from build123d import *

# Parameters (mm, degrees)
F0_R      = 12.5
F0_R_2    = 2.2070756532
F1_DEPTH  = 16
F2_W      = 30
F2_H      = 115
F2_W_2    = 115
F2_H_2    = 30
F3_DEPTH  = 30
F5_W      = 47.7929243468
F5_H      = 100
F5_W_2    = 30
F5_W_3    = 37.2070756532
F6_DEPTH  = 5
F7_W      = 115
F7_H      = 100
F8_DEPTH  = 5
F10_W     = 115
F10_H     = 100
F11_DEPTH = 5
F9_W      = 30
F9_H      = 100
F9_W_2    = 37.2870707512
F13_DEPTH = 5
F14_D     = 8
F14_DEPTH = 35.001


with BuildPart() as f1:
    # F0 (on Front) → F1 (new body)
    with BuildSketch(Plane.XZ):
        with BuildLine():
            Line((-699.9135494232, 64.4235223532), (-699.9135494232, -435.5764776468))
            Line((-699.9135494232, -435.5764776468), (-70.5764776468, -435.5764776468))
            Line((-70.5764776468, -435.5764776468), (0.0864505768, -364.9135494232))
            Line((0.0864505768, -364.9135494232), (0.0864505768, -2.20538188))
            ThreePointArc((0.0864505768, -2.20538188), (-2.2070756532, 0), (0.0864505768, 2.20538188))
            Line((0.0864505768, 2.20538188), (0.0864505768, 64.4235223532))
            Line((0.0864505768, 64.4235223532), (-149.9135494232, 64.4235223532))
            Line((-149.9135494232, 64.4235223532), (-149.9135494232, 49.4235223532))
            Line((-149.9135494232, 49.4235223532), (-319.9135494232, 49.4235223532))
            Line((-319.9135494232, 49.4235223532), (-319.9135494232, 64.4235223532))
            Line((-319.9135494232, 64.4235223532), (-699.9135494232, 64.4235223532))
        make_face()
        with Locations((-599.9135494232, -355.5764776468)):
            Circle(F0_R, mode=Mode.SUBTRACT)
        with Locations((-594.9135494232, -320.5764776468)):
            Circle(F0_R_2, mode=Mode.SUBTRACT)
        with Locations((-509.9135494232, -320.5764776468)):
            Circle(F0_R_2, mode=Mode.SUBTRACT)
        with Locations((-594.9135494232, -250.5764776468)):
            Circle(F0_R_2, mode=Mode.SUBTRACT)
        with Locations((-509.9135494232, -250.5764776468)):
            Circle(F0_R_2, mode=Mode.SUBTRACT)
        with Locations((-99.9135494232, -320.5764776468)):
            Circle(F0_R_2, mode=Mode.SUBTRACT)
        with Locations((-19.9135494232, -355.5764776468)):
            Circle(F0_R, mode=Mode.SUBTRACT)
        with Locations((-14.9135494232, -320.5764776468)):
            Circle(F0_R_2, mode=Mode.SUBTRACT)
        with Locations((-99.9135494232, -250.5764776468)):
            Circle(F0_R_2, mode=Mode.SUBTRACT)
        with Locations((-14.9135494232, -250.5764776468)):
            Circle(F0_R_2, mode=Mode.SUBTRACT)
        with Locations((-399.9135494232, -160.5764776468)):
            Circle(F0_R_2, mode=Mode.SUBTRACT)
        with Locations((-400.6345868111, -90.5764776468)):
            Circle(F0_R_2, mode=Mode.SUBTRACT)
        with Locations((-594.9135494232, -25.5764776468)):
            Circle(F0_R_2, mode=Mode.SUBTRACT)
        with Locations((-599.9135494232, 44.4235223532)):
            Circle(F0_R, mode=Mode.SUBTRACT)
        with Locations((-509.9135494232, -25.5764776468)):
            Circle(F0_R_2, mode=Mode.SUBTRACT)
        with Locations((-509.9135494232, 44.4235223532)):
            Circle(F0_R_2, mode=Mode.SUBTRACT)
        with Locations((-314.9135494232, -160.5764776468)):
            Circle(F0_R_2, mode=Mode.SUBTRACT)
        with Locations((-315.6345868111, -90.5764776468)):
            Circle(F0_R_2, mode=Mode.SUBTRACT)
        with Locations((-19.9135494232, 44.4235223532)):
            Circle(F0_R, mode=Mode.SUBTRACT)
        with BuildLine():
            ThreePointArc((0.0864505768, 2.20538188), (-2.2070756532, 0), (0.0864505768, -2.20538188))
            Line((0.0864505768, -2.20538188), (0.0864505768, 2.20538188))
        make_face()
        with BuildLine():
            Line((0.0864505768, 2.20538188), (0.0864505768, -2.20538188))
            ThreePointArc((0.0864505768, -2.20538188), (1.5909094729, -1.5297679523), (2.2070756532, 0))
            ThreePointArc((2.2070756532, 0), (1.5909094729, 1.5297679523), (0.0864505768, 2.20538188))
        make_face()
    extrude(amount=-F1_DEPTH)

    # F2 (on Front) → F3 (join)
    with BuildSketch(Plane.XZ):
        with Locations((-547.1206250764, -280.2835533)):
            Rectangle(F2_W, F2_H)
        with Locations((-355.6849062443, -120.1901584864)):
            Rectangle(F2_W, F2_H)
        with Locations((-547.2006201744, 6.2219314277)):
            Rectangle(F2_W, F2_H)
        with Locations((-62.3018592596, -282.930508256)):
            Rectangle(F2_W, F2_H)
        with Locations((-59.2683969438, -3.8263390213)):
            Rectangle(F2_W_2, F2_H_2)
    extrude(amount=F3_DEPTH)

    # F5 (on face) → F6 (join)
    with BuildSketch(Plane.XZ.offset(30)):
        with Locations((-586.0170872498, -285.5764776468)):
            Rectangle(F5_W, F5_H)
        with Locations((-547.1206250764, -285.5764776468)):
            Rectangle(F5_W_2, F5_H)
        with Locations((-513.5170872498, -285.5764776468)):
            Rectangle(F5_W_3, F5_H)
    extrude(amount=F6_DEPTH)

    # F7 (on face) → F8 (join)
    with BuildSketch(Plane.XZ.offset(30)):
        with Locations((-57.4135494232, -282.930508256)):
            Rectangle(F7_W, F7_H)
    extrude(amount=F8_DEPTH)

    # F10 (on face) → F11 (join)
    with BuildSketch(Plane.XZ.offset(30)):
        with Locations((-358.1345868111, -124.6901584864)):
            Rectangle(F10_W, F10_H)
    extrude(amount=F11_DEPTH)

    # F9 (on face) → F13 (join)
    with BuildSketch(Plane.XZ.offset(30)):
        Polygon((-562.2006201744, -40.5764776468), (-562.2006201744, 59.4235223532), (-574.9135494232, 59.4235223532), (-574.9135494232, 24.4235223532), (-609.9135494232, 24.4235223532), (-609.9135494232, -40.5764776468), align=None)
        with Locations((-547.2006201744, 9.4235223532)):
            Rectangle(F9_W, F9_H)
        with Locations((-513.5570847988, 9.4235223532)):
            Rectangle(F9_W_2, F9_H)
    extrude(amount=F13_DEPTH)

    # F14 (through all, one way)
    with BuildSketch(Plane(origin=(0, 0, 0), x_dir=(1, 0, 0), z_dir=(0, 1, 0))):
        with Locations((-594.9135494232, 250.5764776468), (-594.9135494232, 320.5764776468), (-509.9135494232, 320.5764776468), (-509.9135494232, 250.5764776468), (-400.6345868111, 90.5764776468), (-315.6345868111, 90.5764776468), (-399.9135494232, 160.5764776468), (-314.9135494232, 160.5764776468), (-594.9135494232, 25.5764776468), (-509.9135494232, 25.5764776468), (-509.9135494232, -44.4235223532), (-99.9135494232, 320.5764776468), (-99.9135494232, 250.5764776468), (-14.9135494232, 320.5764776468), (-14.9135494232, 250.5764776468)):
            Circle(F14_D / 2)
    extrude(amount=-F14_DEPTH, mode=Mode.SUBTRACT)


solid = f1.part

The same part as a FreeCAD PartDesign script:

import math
import FreeCAD as App
import Part
import Sketcher
from FreeCAD import Vector
Q = App.Units.Quantity

doc = App.newDocument("Part")
body = doc.addObject("PartDesign::Body", "Body")

sketch1 = body.newObject("Sketcher::SketchObject", "Sketch")
sketch1.AttachmentSupport = (doc.getObject("XZ_Plane"), [""])
sketch1.MapMode = "FlatFace"
sketch1.addGeometry(Part.LineSegment(Vector(-699.913549, 64.423522, 0), Vector(-699.913549, -435.576478, 0)), False)
sketch1.addGeometry(Part.LineSegment(Vector(-699.913549, -435.576478, 0), Vector(-70.576478, -435.576478, 0)), False)
sketch1.addGeometry(Part.LineSegment(Vector(-70.576478, -435.576478, 0), Vector(0.086451, -364.913549, 0)), False)
sketch1.addGeometry(Part.LineSegment(Vector(0.086451, -364.913549, 0), Vector(0.086451, -2.205382, 0)), False)
sketch1.addGeometry(Part.ArcOfCircle(Part.Circle(Vector(0, 0, 0), Vector(0, 0, 1), 2.207076), math.radians(-87.755165), math.radians(0)), False)
sketch1.addGeometry(Part.ArcOfCircle(Part.Circle(Vector(0, 0, 0), Vector(0, 0, 1), 2.207076), math.radians(0), math.radians(87.755165)), False)
sketch1.addGeometry(Part.LineSegment(Vector(0.086451, 2.205382, 0), Vector(0.086451, 64.423522, 0)), False)
sketch1.addGeometry(Part.LineSegment(Vector(0.086451, 64.423522, 0), Vector(-149.913549, 64.423522, 0)), False)
sketch1.addGeometry(Part.LineSegment(Vector(-149.913549, 64.423522, 0), Vector(-149.913549, 49.423522, 0)), False)
sketch1.addGeometry(Part.LineSegment(Vector(-149.913549, 49.423522, 0), Vector(-319.913549, 49.423522, 0)), False)
sketch1.addGeometry(Part.LineSegment(Vector(-319.913549, 49.423522, 0), Vector(-319.913549, 64.423522, 0)), False)
sketch1.addGeometry(Part.LineSegment(Vector(-319.913549, 64.423522, 0), Vector(-699.913549, 64.423522, 0)), False)
sketch1.addGeometry(Part.Circle(Vector(-599.913549, -355.576478, 0), Vector(0, 0, 1), 12.5), False)
sketch1.addGeometry(Part.Circle(Vector(-594.913549, -320.576478, 0), Vector(0, 0, 1), 2.207076), False)
sketch1.addGeometry(Part.Circle(Vector(-509.913549, -320.576478, 0), Vector(0, 0, 1), 2.207076), False)
sketch1.addGeometry(Part.Circle(Vector(-594.913549, -250.576478, 0), Vector(0, 0, 1), 2.207076), False)
sketch1.addGeometry(Part.Circle(Vector(-509.913549, -250.576478, 0), Vector(0, 0, 1), 2.207076), False)
sketch1.addGeometry(Part.Circle(Vector(-399.913549, -160.576478, 0), Vector(0, 0, 1), 2.207076), False)
sketch1.addGeometry(Part.Circle(Vector(-314.913549, -160.576478, 0), Vector(0, 0, 1), 2.207076), False)
sketch1.addGeometry(Part.Circle(Vector(-99.913549, -320.576478, 0), Vector(0, 0, 1), 2.207076), False)
sketch1.addGeometry(Part.Circle(Vector(-19.913549, -355.576478, 0), Vector(0, 0, 1), 12.5), False)
sketch1.addGeometry(Part.Circle(Vector(-14.913549, -320.576478, 0), Vector(0, 0, 1), 2.207076), False)
sketch1.addGeometry(Part.Circle(Vector(-99.913549, -250.576478, 0), Vector(0, 0, 1), 2.207076), False)
sketch1.addGeometry(Part.Circle(Vector(-14.913549, -250.576478, 0), Vector(0, 0, 1), 2.207076), False)
sketch1.addGeometry(Part.Circle(Vector(-400.634587, -90.576478, 0), Vector(0, 0, 1), 2.207076), False)
sketch1.addGeometry(Part.Circle(Vector(-315.634587, -90.576478, 0), Vector(0, 0, 1), 2.207076), False)
sketch1.addGeometry(Part.Circle(Vector(-594.913549, -25.576478, 0), Vector(0, 0, 1), 2.207076), False)
sketch1.addGeometry(Part.Circle(Vector(-509.913549, -25.576478, 0), Vector(0, 0, 1), 2.207076), False)
sketch1.addGeometry(Part.Circle(Vector(-599.913549, 44.423522, 0), Vector(0, 0, 1), 12.5), False)
sketch1.addGeometry(Part.Circle(Vector(-509.913549, 44.423522, 0), Vector(0, 0, 1), 2.207076), False)
sketch1.addGeometry(Part.Circle(Vector(-19.913549, 44.423522, 0), Vector(0, 0, 1), 12.5), False)
sketch1.addConstraint(Sketcher.Constraint("Coincident", 0, 2, 1, 1))
sketch1.addConstraint(Sketcher.Constraint("Coincident", 1, 2, 2, 1))
sketch1.addConstraint(Sketcher.Constraint("Coincident", 2, 2, 3, 1))
sketch1.addConstraint(Sketcher.Constraint("Coincident", 3, 2, 4, 1))
sketch1.addConstraint(Sketcher.Constraint("Tangent", 4, 2, 5, 1))
sketch1.addConstraint(Sketcher.Constraint("Coincident", 5, 2, 6, 1))
sketch1.addConstraint(Sketcher.Constraint("Coincident", 6, 2, 7, 1))
sketch1.addConstraint(Sketcher.Constraint("Coincident", 7, 2, 8, 1))
sketch1.addConstraint(Sketcher.Constraint("Coincident", 8, 2, 9, 1))
sketch1.addConstraint(Sketcher.Constraint("Coincident", 9, 2, 10, 1))
sketch1.addConstraint(Sketcher.Constraint("Coincident", 10, 2, 11, 1))
sketch1.addConstraint(Sketcher.Constraint("Coincident", 11, 2, 0, 1))
sketch1.addConstraint(Sketcher.Constraint("Vertical", 0))
sketch1.addConstraint(Sketcher.Constraint("Horizontal", 1))
sketch1.addConstraint(Sketcher.Constraint("Vertical", 3))
sketch1.addConstraint(Sketcher.Constraint("Vertical", 6))
sketch1.addConstraint(Sketcher.Constraint("Horizontal", 7))
sketch1.addConstraint(Sketcher.Constraint("Vertical", 8))
sketch1.addConstraint(Sketcher.Constraint("Horizontal", 9))
sketch1.addConstraint(Sketcher.Constraint("Vertical", 10))
sketch1.addConstraint(Sketcher.Constraint("Horizontal", 11))
sketch1.addConstraint(Sketcher.Constraint("Coincident", 4, 3, -1, 1))
sketch1.addConstraint(Sketcher.Constraint("Equal", 4, 5))
sketch1.addConstraint(Sketcher.Constraint("Equal", 5, 13))
sketch1.addConstraint(Sketcher.Constraint("Equal", 13, 14))
sketch1.addConstraint(Sketcher.Constraint("Equal", 14, 15))
sketch1.addConstraint(Sketcher.Constraint("Equal", 15, 16))
sketch1.addConstraint(Sketcher.Constraint("Equal", 16, 17))
sketch1.addConstraint(Sketcher.Constraint("Equal", 17, 18))
sketch1.addConstraint(Sketcher.Constraint("Equal", 18, 19))
sketch1.addConstraint(Sketcher.Constraint("Equal", 12, 20))
sketch1.addConstraint(Sketcher.Constraint("Equal", 19, 21))
sketch1.addConstraint(Sketcher.Constraint("Equal", 21, 22))
sketch1.addConstraint(Sketcher.Constraint("Equal", 22, 23))
sketch1.addConstraint(Sketcher.Constraint("Equal", 23, 24))
sketch1.addConstraint(Sketcher.Constraint("Equal", 24, 25))
sketch1.addConstraint(Sketcher.Constraint("Equal", 25, 26))
sketch1.addConstraint(Sketcher.Constraint("Equal", 26, 27))
sketch1.addConstraint(Sketcher.Constraint("Equal", 20, 28))
sketch1.addConstraint(Sketcher.Constraint("Equal", 27, 29))
sketch1.addConstraint(Sketcher.Constraint("Equal", 28, 30))
sketch1.addConstraint(Sketcher.Constraint("PointOnObject", 4, 2, -1))
sketch1.addConstraint(Sketcher.Constraint("Horizontal", 13, 3, 14, 3))
sketch1.addConstraint(Sketcher.Constraint("Horizontal", 15, 3, 16, 3))
sketch1.addConstraint(Sketcher.Constraint("Horizontal", 17, 3, 18, 3))
sketch1.addConstraint(Sketcher.Constraint("Horizontal", 14, 3, 19, 3))
sketch1.addConstraint(Sketcher.Constraint("Horizontal", 12, 3, 20, 3))
sketch1.addConstraint(Sketcher.Constraint("Horizontal", 19, 3, 21, 3))
sketch1.addConstraint(Sketcher.Constraint("Horizontal", 16, 3, 22, 3))
sketch1.addConstraint(Sketcher.Constraint("Horizontal", 22, 3, 23, 3))
sketch1.addConstraint(Sketcher.Constraint("Horizontal", 24, 3, 25, 3))
sketch1.addConstraint(Sketcher.Constraint("Horizontal", 26, 3, 27, 3))
sketch1.addConstraint(Sketcher.Constraint("Horizontal", 28, 3, 29, 3))
sketch1.addConstraint(Sketcher.Constraint("Horizontal", 29, 3, 30, 3))
sketch1.addConstraint(Sketcher.Constraint("Horizontal", 7, 2, 10, 2))
sketch1.addConstraint(Sketcher.Constraint("Vertical", 13, 3, 15, 3))
sketch1.addConstraint(Sketcher.Constraint("Vertical", 14, 3, 16, 3))
sketch1.addConstraint(Sketcher.Constraint("Vertical", 19, 3, 22, 3))
sketch1.addConstraint(Sketcher.Constraint("Vertical", 21, 3, 23, 3))
sketch1.addConstraint(Sketcher.Constraint("Vertical", 15, 3, 26, 3))
sketch1.addConstraint(Sketcher.Constraint("Vertical", 16, 3, 27, 3))
sketch1.addConstraint(Sketcher.Constraint("Vertical", 12, 3, 28, 3))
sketch1.addConstraint(Sketcher.Constraint("Vertical", 27, 3, 29, 3))
sketch1.addConstraint(Sketcher.Constraint("Vertical", 20, 3, 30, 3))
sketch1.addConstraint(Sketcher.Constraint("Vertical", 3, 2, 5, 2))
sketch1.addConstraint(Sketcher.Constraint("Diameter", 12, Q("25 mm")))
sketch1.addConstraint(Sketcher.Constraint("DistanceX", 7, 2, 7, 1, Q("150 mm")))
sketch1.addConstraint(Sketcher.Constraint("DistanceX", 9, 2, 9, 1, Q("170 mm")))
sketch1.addConstraint(Sketcher.Constraint("DistanceX", 11, 2, 11, 1, Q("380 mm")))
sketch1.addConstraint(Sketcher.Constraint("DistanceY", 0, 2, 0, 1, Q("500 mm")))
sketch1.addConstraint(Sketcher.Constraint("DistanceY", 8, 2, 8, 1, Q("15 mm")))
sketch1.addConstraint(Sketcher.Constraint("Angle", 2, Q("45 deg")))
sketch1.addConstraint(Sketcher.Constraint("DistanceX", 12, 3, 13, 3, Q("5 mm")))
sketch1.addConstraint(Sketcher.Constraint("DistanceY", 12, 3, 13, 3, Q("35 mm")))
sketch1.addConstraint(Sketcher.Constraint("DistanceX", 13, 3, 14, 3, Q("85 mm")))
sketch1.addConstraint(Sketcher.Constraint("DistanceY", 13, 3, 15, 3, Q("70 mm")))
sketch1.addConstraint(Sketcher.Constraint("DistanceX", 16, 3, 17, 3, Q("110 mm")))
sketch1.addConstraint(Sketcher.Constraint("DistanceY", 16, 3, 17, 3, Q("90 mm")))
sketch1.addConstraint(Sketcher.Constraint("DistanceX", 17, 3, 18, 3, Q("85 mm")))
sketch1.addConstraint(Sketcher.Constraint("DistanceX", 18, 3, 19, 3, Q("215 mm")))
sketch1.addConstraint(Sketcher.Constraint("DistanceX", 19, 3, 20, 3, Q("80 mm")))
sketch1.addConstraint(Sketcher.Constraint("DistanceX", 20, 3, 21, 3, Q("5 mm")))
sketch1.addConstraint(Sketcher.Constraint("DistanceY", 17, 3, 24, 3, Q("70 mm")))
sketch1.addConstraint(Sketcher.Constraint("DistanceX", 24, 3, 25, 3, Q("85 mm")))
sketch1.addConstraint(Sketcher.Constraint("DistanceY", 24, 3, 26, 3, Q("65 mm")))
sketch1.addConstraint(Sketcher.Constraint("DistanceY", 26, 3, 28, 3, Q("70 mm")))
sketch1.addConstraint(Sketcher.Constraint("DistanceX", 0, 2, 12, 3, Q("100 mm")))
sketch1.addConstraint(Sketcher.Constraint("DistanceY", 0, 2, 12, 3, Q("80 mm")))
sketch1.addConstraint(Sketcher.Constraint("Diameter", 13, Q("4.414151 mm")))
sketch1.addConstraint(Sketcher.Constraint("DistanceX", 1, 1, 1, 2, Q("629.337072 mm")))
sketch1.addConstraint(Sketcher.Constraint("DistanceY", 6, 1, 6, 2, Q("62.21814 mm")))
sketch1.addConstraint(Sketcher.Constraint("DistanceY", 3, 1, 3, 2, Q("362.708168 mm")))
sketch1.addConstraint(Sketcher.Constraint("DistanceX", 24, 3, -1, 1, Q("400.634587 mm")))
pad1 = body.newObject("PartDesign::Pad", "Pad")
pad1.Profile = sketch1
pad1.Length = 16
pad1.Reversed = True

sketch2 = body.newObject("Sketcher::SketchObject", "Sketch001")
sketch2.AttachmentSupport = (doc.getObject("XZ_Plane"), [""])
sketch2.MapMode = "FlatFace"
sketch2.addGeometry(Part.LineSegment(Vector(-562.120625, -222.783553, 0), Vector(-562.120625, -337.783553, 0)), False)
sketch2.addGeometry(Part.LineSegment(Vector(-562.120625, -337.783553, 0), Vector(-532.120625, -337.783553, 0)), False)
sketch2.addGeometry(Part.LineSegment(Vector(-532.120625, -337.783553, 0), Vector(-532.120625, -222.783553, 0)), False)
sketch2.addGeometry(Part.LineSegment(Vector(-532.120625, -222.783553, 0), Vector(-562.120625, -222.783553, 0)), False)
sketch2.addGeometry(Part.LineSegment(Vector(-370.684906, -62.690158, 0), Vector(-370.684906, -177.690158, 0)), False)
sketch2.addGeometry(Part.LineSegment(Vector(-370.684906, -177.690158, 0), Vector(-340.684906, -177.690158, 0)), False)
sketch2.addGeometry(Part.LineSegment(Vector(-340.684906, -177.690158, 0), Vector(-340.684906, -62.690158, 0)), False)
sketch2.addGeometry(Part.LineSegment(Vector(-340.684906, -62.690158, 0), Vector(-370.684906, -62.690158, 0)), False)
sketch2.addGeometry(Part.LineSegment(Vector(-562.20062, 63.721931, 0), Vector(-562.20062, -51.278069, 0)), False)
sketch2.addGeometry(Part.LineSegment(Vector(-562.20062, -51.278069, 0), Vector(-532.20062, -51.278069, 0)), False)
sketch2.addGeometry(Part.LineSegment(Vector(-532.20062, -51.278069, 0), Vector(-532.20062, 63.721931, 0)), False)
sketch2.addGeometry(Part.LineSegment(Vector(-532.20062, 63.721931, 0), Vector(-562.20062, 63.721931, 0)), False)
sketch2.addGeometry(Part.LineSegment(Vector(-77.301859, -225.430508, 0), Vector(-77.301859, -340.430508, 0)), False)
sketch2.addGeometry(Part.LineSegment(Vector(-77.301859, -340.430508, 0), Vector(-47.301859, -340.430508, 0)), False)
sketch2.addGeometry(Part.LineSegment(Vector(-47.301859, -340.430508, 0), Vector(-47.301859, -225.430508, 0)), False)
sketch2.addGeometry(Part.LineSegment(Vector(-47.301859, -225.430508, 0), Vector(-77.301859, -225.430508, 0)), False)
sketch2.addGeometry(Part.LineSegment(Vector(-116.768397, 11.173661, 0), Vector(-116.768397, -18.826339, 0)), False)
sketch2.addGeometry(Part.LineSegment(Vector(-116.768397, -18.826339, 0), Vector(-1.768397, -18.826339, 0)), False)
sketch2.addGeometry(Part.LineSegment(Vector(-1.768397, -18.826339, 0), Vector(-1.768397, 11.173661, 0)), False)
sketch2.addGeometry(Part.LineSegment(Vector(-1.768397, 11.173661, 0), Vector(-116.768397, 11.173661, 0)), False)
sketch2.addConstraint(Sketcher.Constraint("Coincident", 0, 2, 1, 1))
sketch2.addConstraint(Sketcher.Constraint("Coincident", 1, 2, 2, 1))
sketch2.addConstraint(Sketcher.Constraint("Coincident", 2, 2, 3, 1))
sketch2.addConstraint(Sketcher.Constraint("Coincident", 3, 2, 0, 1))
sketch2.addConstraint(Sketcher.Constraint("Coincident", 4, 2, 5, 1))
sketch2.addConstraint(Sketcher.Constraint("Coincident", 5, 2, 6, 1))
sketch2.addConstraint(Sketcher.Constraint("Coincident", 6, 2, 7, 1))
sketch2.addConstraint(Sketcher.Constraint("Coincident", 7, 2, 4, 1))
sketch2.addConstraint(Sketcher.Constraint("Coincident", 8, 2, 9, 1))
sketch2.addConstraint(Sketcher.Constraint("Coincident", 9, 2, 10, 1))
sketch2.addConstraint(Sketcher.Constraint("Coincident", 10, 2, 11, 1))
sketch2.addConstraint(Sketcher.Constraint("Coincident", 11, 2, 8, 1))
sketch2.addConstraint(Sketcher.Constraint("Coincident", 12, 2, 13, 1))
sketch2.addConstraint(Sketcher.Constraint("Coincident", 13, 2, 14, 1))
sketch2.addConstraint(Sketcher.Constraint("Coincident", 14, 2, 15, 1))
sketch2.addConstraint(Sketcher.Constraint("Coincident", 15, 2, 12, 1))
sketch2.addConstraint(Sketcher.Constraint("Coincident", 16, 2, 17, 1))
sketch2.addConstraint(Sketcher.Constraint("Coincident", 17, 2, 18, 1))
sketch2.addConstraint(Sketcher.Constraint("Coincident", 18, 2, 19, 1))
sketch2.addConstraint(Sketcher.Constraint("Coincident", 19, 2, 16, 1))
sketch2.addConstraint(Sketcher.Constraint("Vertical", 0))
sketch2.addConstraint(Sketcher.Constraint("Horizontal", 1))
sketch2.addConstraint(Sketcher.Constraint("Vertical", 2))
sketch2.addConstraint(Sketcher.Constraint("Horizontal", 3))
sketch2.addConstraint(Sketcher.Constraint("Vertical", 4))
sketch2.addConstraint(Sketcher.Constraint("Horizontal", 5))
sketch2.addConstraint(Sketcher.Constraint("Vertical", 6))
sketch2.addConstraint(Sketcher.Constraint("Horizontal", 7))
sketch2.addConstraint(Sketcher.Constraint("Vertical", 8))
sketch2.addConstraint(Sketcher.Constraint("Horizontal", 9))
sketch2.addConstraint(Sketcher.Constraint("Vertical", 10))
sketch2.addConstraint(Sketcher.Constraint("Horizontal", 11))
sketch2.addConstraint(Sketcher.Constraint("Vertical", 12))
sketch2.addConstraint(Sketcher.Constraint("Horizontal", 13))
sketch2.addConstraint(Sketcher.Constraint("Vertical", 14))
sketch2.addConstraint(Sketcher.Constraint("Horizontal", 15))
sketch2.addConstraint(Sketcher.Constraint("Vertical", 16))
sketch2.addConstraint(Sketcher.Constraint("Horizontal", 17))
sketch2.addConstraint(Sketcher.Constraint("Vertical", 18))
sketch2.addConstraint(Sketcher.Constraint("Horizontal", 19))
sketch2.addConstraint(Sketcher.Constraint("Equal", 3, 5))
sketch2.addConstraint(Sketcher.Constraint("Equal", 7, 9))
sketch2.addConstraint(Sketcher.Constraint("Equal", 11, 13))
sketch2.addConstraint(Sketcher.Constraint("Equal", 19, 0))
sketch2.addConstraint(Sketcher.Constraint("Equal", 2, 4))
sketch2.addConstraint(Sketcher.Constraint("Equal", 6, 8))
sketch2.addConstraint(Sketcher.Constraint("Equal", 10, 12))
sketch2.addConstraint(Sketcher.Constraint("Equal", 15, 16))
sketch2.addConstraint(Sketcher.Constraint("DistanceX", 1, 1, 1, 2, Q("30 mm")))
sketch2.addConstraint(Sketcher.Constraint("DistanceX", 17, 1, 17, 2, Q("115 mm")))
sketch2.addConstraint(Sketcher.Constraint("DistanceY", 4, 2, -1, 1, Q("177.690158 mm")))
sketch2.addConstraint(Sketcher.Constraint("DistanceX", 8, 2, -1, 1, Q("562.20062 mm")))
sketch2.addConstraint(Sketcher.Constraint("DistanceY", 8, 2, -1, 1, Q("51.278069 mm")))
sketch2.addConstraint(Sketcher.Constraint("DistanceX", 12, 2, -1, 1, Q("77.301859 mm")))
sketch2.addConstraint(Sketcher.Constraint("DistanceY", 12, 2, -1, 1, Q("340.430508 mm")))
sketch2.addConstraint(Sketcher.Constraint("DistanceY", 16, 2, -1, 1, Q("18.826339 mm")))
sketch2.addConstraint(Sketcher.Constraint("DistanceX", 2, 2, 4, 2, Q("161.435719 mm")))
sketch2.addConstraint(Sketcher.Constraint("DistanceX", 6, 2, 16, 2, Q("223.916509 mm")))
sketch2.addConstraint(Sketcher.Constraint("DistanceX", 0, 2, -1, 1, Q("562.120625 mm")))
sketch2.addConstraint(Sketcher.Constraint("DistanceY", 0, 2, -1, 1, Q("337.783553 mm")))
pad2 = body.newObject("PartDesign::Pad", "Pad001")
pad2.Profile = sketch2
pad2.Length = 30

sketch3 = body.newObject("Sketcher::SketchObject", "Sketch002")
sketch3.AttachmentSupport = (doc.getObject("XZ_Plane"), [""])
sketch3.MapMode = "FlatFace"
sketch3.AttachmentOffset = App.Placement(Vector(0, 0, 30), App.Rotation())
sketch3.addGeometry(Part.LineSegment(Vector(-609.913549, -235.576478, 0), Vector(-609.913549, -335.576478, 0)), False)
sketch3.addGeometry(Part.LineSegment(Vector(-609.913549, -335.576478, 0), Vector(-494.913549, -335.576478, 0)), False)
sketch3.addGeometry(Part.LineSegment(Vector(-494.913549, -335.576478, 0), Vector(-494.913549, -235.576478, 0)), False)
sketch3.addGeometry(Part.LineSegment(Vector(-494.913549, -235.576478, 0), Vector(-609.913549, -235.576478, 0)), False)
sketch3.addConstraint(Sketcher.Constraint("Coincident", 0, 2, 1, 1))
sketch3.addConstraint(Sketcher.Constraint("Coincident", 1, 2, 2, 1))
sketch3.addConstraint(Sketcher.Constraint("Coincident", 2, 2, 3, 1))
sketch3.addConstraint(Sketcher.Constraint("Coincident", 3, 2, 0, 1))
sketch3.addConstraint(Sketcher.Constraint("Vertical", 0))
sketch3.addConstraint(Sketcher.Constraint("Horizontal", 1))
sketch3.addConstraint(Sketcher.Constraint("Vertical", 2))
sketch3.addConstraint(Sketcher.Constraint("Horizontal", 3))
sketch3.addConstraint(Sketcher.Constraint("DistanceX", 1, 1, 1, 2, Q("115 mm")))
sketch3.addConstraint(Sketcher.Constraint("DistanceY", 0, 2, 0, 1, Q("100 mm")))
sketch3.addConstraint(Sketcher.Constraint("DistanceX", 0, 2, -1, 1, Q("609.913549 mm")))
sketch3.addConstraint(Sketcher.Constraint("DistanceY", 0, 2, -1, 1, Q("335.576478 mm")))
pad3 = body.newObject("PartDesign::Pad", "Pad002")
pad3.Profile = sketch3
pad3.Length = 5

sketch4 = body.newObject("Sketcher::SketchObject", "Sketch003")
sketch4.AttachmentSupport = (doc.getObject("XZ_Plane"), [""])
sketch4.MapMode = "FlatFace"
sketch4.AttachmentOffset = App.Placement(Vector(0, 0, 30), App.Rotation())
sketch4.addGeometry(Part.LineSegment(Vector(-114.913549, -232.930508, 0), Vector(-114.913549, -332.930508, 0)), False)
sketch4.addGeometry(Part.LineSegment(Vector(-114.913549, -332.930508, 0), Vector(0.086451, -332.930508, 0)), False)
sketch4.addGeometry(Part.LineSegment(Vector(0.086451, -332.930508, 0), Vector(0.086451, -232.930508, 0)), False)
sketch4.addGeometry(Part.LineSegment(Vector(0.086451, -232.930508, 0), Vector(-114.913549, -232.930508, 0)), False)
sketch4.addConstraint(Sketcher.Constraint("Coincident", 0, 2, 1, 1))
sketch4.addConstraint(Sketcher.Constraint("Coincident", 1, 2, 2, 1))
sketch4.addConstraint(Sketcher.Constraint("Coincident", 2, 2, 3, 1))
sketch4.addConstraint(Sketcher.Constraint("Coincident", 3, 2, 0, 1))
sketch4.addConstraint(Sketcher.Constraint("Vertical", 0))
sketch4.addConstraint(Sketcher.Constraint("Horizontal", 1))
sketch4.addConstraint(Sketcher.Constraint("Vertical", 2))
sketch4.addConstraint(Sketcher.Constraint("Horizontal", 3))
sketch4.addConstraint(Sketcher.Constraint("DistanceX", 1, 1, 1, 2, Q("115 mm")))
sketch4.addConstraint(Sketcher.Constraint("DistanceY", 0, 2, 0, 1, Q("100 mm")))
sketch4.addConstraint(Sketcher.Constraint("DistanceX", 0, 2, -1, 1, Q("114.913549 mm")))
sketch4.addConstraint(Sketcher.Constraint("DistanceY", 0, 2, -1, 1, Q("332.930508 mm")))
pad4 = body.newObject("PartDesign::Pad", "Pad003")
pad4.Profile = sketch4
pad4.Length = 5

sketch5 = body.newObject("Sketcher::SketchObject", "Sketch004")
sketch5.AttachmentSupport = (doc.getObject("XZ_Plane"), [""])
sketch5.MapMode = "FlatFace"
sketch5.AttachmentOffset = App.Placement(Vector(0, 0, 30), App.Rotation())
sketch5.addGeometry(Part.LineSegment(Vector(-415.634587, -74.690158, 0), Vector(-415.634587, -174.690158, 0)), False)
sketch5.addGeometry(Part.LineSegment(Vector(-415.634587, -174.690158, 0), Vector(-300.634587, -174.690158, 0)), False)
sketch5.addGeometry(Part.LineSegment(Vector(-300.634587, -174.690158, 0), Vector(-300.634587, -74.690158, 0)), False)
sketch5.addGeometry(Part.LineSegment(Vector(-300.634587, -74.690158, 0), Vector(-415.634587, -74.690158, 0)), False)
sketch5.addConstraint(Sketcher.Constraint("Coincident", 0, 2, 1, 1))
sketch5.addConstraint(Sketcher.Constraint("Coincident", 1, 2, 2, 1))
sketch5.addConstraint(Sketcher.Constraint("Coincident", 2, 2, 3, 1))
sketch5.addConstraint(Sketcher.Constraint("Coincident", 3, 2, 0, 1))
sketch5.addConstraint(Sketcher.Constraint("Vertical", 0))
sketch5.addConstraint(Sketcher.Constraint("Horizontal", 1))
sketch5.addConstraint(Sketcher.Constraint("Vertical", 2))
sketch5.addConstraint(Sketcher.Constraint("Horizontal", 3))
sketch5.addConstraint(Sketcher.Constraint("DistanceX", 1, 1, 1, 2, Q("115 mm")))
sketch5.addConstraint(Sketcher.Constraint("DistanceY", 0, 2, 0, 1, Q("100 mm")))
sketch5.addConstraint(Sketcher.Constraint("DistanceY", 0, 2, -1, 1, Q("174.690158 mm")))
sketch5.addConstraint(Sketcher.Constraint("DistanceX", 0, 2, -1, 1, Q("415.634587 mm")))
pad5 = body.newObject("PartDesign::Pad", "Pad004")
pad5.Profile = sketch5
pad5.Length = 5

sketch6 = body.newObject("Sketcher::SketchObject", "Sketch005")
sketch6.AttachmentSupport = (doc.getObject("XZ_Plane"), [""])
sketch6.MapMode = "FlatFace"
sketch6.AttachmentOffset = App.Placement(Vector(0, 0, 30), App.Rotation())
sketch6.addGeometry(Part.LineSegment(Vector(-574.913549, 59.423522, 0), Vector(-574.913549, 24.423522, 0)), False)
sketch6.addGeometry(Part.LineSegment(Vector(-574.913549, 24.423522, 0), Vector(-609.913549, 24.423522, 0)), False)
sketch6.addGeometry(Part.LineSegment(Vector(-609.913549, 24.423522, 0), Vector(-609.913549, -40.576478, 0)), False)
sketch6.addGeometry(Part.LineSegment(Vector(-609.913549, -40.576478, 0), Vector(-494.913549, -40.576478, 0)), False)
sketch6.addGeometry(Part.LineSegment(Vector(-494.913549, -40.576478, 0), Vector(-494.913549, 59.423522, 0)), False)
sketch6.addGeometry(Part.LineSegment(Vector(-494.913549, 59.423522, 0), Vector(-574.913549, 59.423522, 0)), False)
sketch6.addConstraint(Sketcher.Constraint("Coincident", 0, 2, 1, 1))
sketch6.addConstraint(Sketcher.Constraint("Coincident", 1, 2, 2, 1))
sketch6.addConstraint(Sketcher.Constraint("Coincident", 2, 2, 3, 1))
sketch6.addConstraint(Sketcher.Constraint("Coincident", 3, 2, 4, 1))
sketch6.addConstraint(Sketcher.Constraint("Coincident", 4, 2, 5, 1))
sketch6.addConstraint(Sketcher.Constraint("Coincident", 5, 2, 0, 1))
sketch6.addConstraint(Sketcher.Constraint("Vertical", 0))
sketch6.addConstraint(Sketcher.Constraint("Horizontal", 1))
sketch6.addConstraint(Sketcher.Constraint("Vertical", 2))
sketch6.addConstraint(Sketcher.Constraint("Horizontal", 3))
sketch6.addConstraint(Sketcher.Constraint("Vertical", 4))
sketch6.addConstraint(Sketcher.Constraint("Horizontal", 5))
sketch6.addConstraint(Sketcher.Constraint("Equal", 1, 0))
sketch6.addConstraint(Sketcher.Constraint("DistanceX", 1, 2, 1, 1, Q("35 mm")))
sketch6.addConstraint(Sketcher.Constraint("DistanceX", 3, 1, 3, 2, Q("115 mm")))
sketch6.addConstraint(Sketcher.Constraint("DistanceY", 2, 2, 2, 1, Q("65 mm")))
sketch6.addConstraint(Sketcher.Constraint("DistanceX", 0, 2, -1, 1, Q("574.913549 mm")))
sketch6.addConstraint(Sketcher.Constraint("DistanceY", -1, 1, 0, 2, Q("24.423522 mm")))
pad6 = body.newObject("PartDesign::Pad", "Pad005")
pad6.Profile = sketch6
pad6.Length = 5

sketch7 = body.newObject("Sketcher::SketchObject", "Sketch006")
sketch7.AttachmentSupport = (doc.getObject("XZ_Plane"), [""])
sketch7.MapMode = "FlatFace"
sketch7.addGeometry(Part.Circle(Vector(-14.913549, -250.576478, 0), Vector(0, 0, 1), 4), False)
sketch7.addGeometry(Part.Circle(Vector(-594.913549, -250.576478, 0), Vector(0, 0, 1), 4), False)
sketch7.addGeometry(Part.Circle(Vector(-594.913549, -320.576478, 0), Vector(0, 0, 1), 4), False)
sketch7.addGeometry(Part.Circle(Vector(-509.913549, -320.576478, 0), Vector(0, 0, 1), 4), False)
sketch7.addGeometry(Part.Circle(Vector(-509.913549, -250.576478, 0), Vector(0, 0, 1), 4), False)
sketch7.addGeometry(Part.Circle(Vector(-400.634587, -90.576478, 0), Vector(0, 0, 1), 4), False)
sketch7.addGeometry(Part.Circle(Vector(-315.634587, -90.576478, 0), Vector(0, 0, 1), 4), False)
sketch7.addGeometry(Part.Circle(Vector(-399.913549, -160.576478, 0), Vector(0, 0, 1), 4), False)
sketch7.addGeometry(Part.Circle(Vector(-314.913549, -160.576478, 0), Vector(0, 0, 1), 4), False)
sketch7.addGeometry(Part.Circle(Vector(-594.913549, -25.576478, 0), Vector(0, 0, 1), 4), False)
sketch7.addGeometry(Part.Circle(Vector(-509.913549, -25.576478, 0), Vector(0, 0, 1), 4), False)
sketch7.addGeometry(Part.Circle(Vector(-509.913549, 44.423522, 0), Vector(0, 0, 1), 4), False)
sketch7.addGeometry(Part.Circle(Vector(-99.913549, -320.576478, 0), Vector(0, 0, 1), 4), False)
sketch7.addGeometry(Part.Circle(Vector(-99.913549, -250.576478, 0), Vector(0, 0, 1), 4), False)
sketch7.addGeometry(Part.Circle(Vector(-14.913549, -320.576478, 0), Vector(0, 0, 1), 4), False)
sketch7.addConstraint(Sketcher.Constraint("Equal", 0, 1))
sketch7.addConstraint(Sketcher.Constraint("Equal", 1, 2))
sketch7.addConstraint(Sketcher.Constraint("Equal", 2, 3))
sketch7.addConstraint(Sketcher.Constraint("Equal", 3, 4))
sketch7.addConstraint(Sketcher.Constraint("Equal", 4, 5))
sketch7.addConstraint(Sketcher.Constraint("Equal", 5, 6))
sketch7.addConstraint(Sketcher.Constraint("Equal", 6, 7))
sketch7.addConstraint(Sketcher.Constraint("Equal", 7, 8))
sketch7.addConstraint(Sketcher.Constraint("Equal", 8, 9))
sketch7.addConstraint(Sketcher.Constraint("Equal", 9, 10))
sketch7.addConstraint(Sketcher.Constraint("Equal", 10, 11))
sketch7.addConstraint(Sketcher.Constraint("Equal", 11, 12))
sketch7.addConstraint(Sketcher.Constraint("Equal", 12, 13))
sketch7.addConstraint(Sketcher.Constraint("Equal", 13, 14))
sketch7.addConstraint(Sketcher.Constraint("Horizontal", 0, 3, 1, 3))
sketch7.addConstraint(Sketcher.Constraint("Horizontal", 2, 3, 3, 3))
sketch7.addConstraint(Sketcher.Constraint("Horizontal", 1, 3, 4, 3))
sketch7.addConstraint(Sketcher.Constraint("Horizontal", 5, 3, 6, 3))
sketch7.addConstraint(Sketcher.Constraint("Horizontal", 7, 3, 8, 3))
sketch7.addConstraint(Sketcher.Constraint("Horizontal", 9, 3, 10, 3))
sketch7.addConstraint(Sketcher.Constraint("Horizontal", 3, 3, 12, 3))
sketch7.addConstraint(Sketcher.Constraint("Horizontal", 4, 3, 13, 3))
sketch7.addConstraint(Sketcher.Constraint("Horizontal", 12, 3, 14, 3))
sketch7.addConstraint(Sketcher.Constraint("Vertical", 1, 3, 2, 3))
sketch7.addConstraint(Sketcher.Constraint("Vertical", 3, 3, 4, 3))
sketch7.addConstraint(Sketcher.Constraint("Vertical", 2, 3, 9, 3))
sketch7.addConstraint(Sketcher.Constraint("Vertical", 4, 3, 10, 3))
sketch7.addConstraint(Sketcher.Constraint("Vertical", 10, 3, 11, 3))
sketch7.addConstraint(Sketcher.Constraint("Vertical", 12, 3, 13, 3))
sketch7.addConstraint(Sketcher.Constraint("Vertical", 0, 3, 14, 3))
sketch7.addConstraint(Sketcher.Constraint("Diameter", 0, Q("8 mm")))
sketch7.addConstraint(Sketcher.Constraint("DistanceX", 1, 3, 0, 3, Q("580 mm")))
sketch7.addConstraint(Sketcher.Constraint("DistanceY", 2, 3, 1, 3, Q("70 mm")))
sketch7.addConstraint(Sketcher.Constraint("DistanceX", 2, 3, 3, 3, Q("85 mm")))
sketch7.addConstraint(Sketcher.Constraint("DistanceY", 4, 3, 5, 3, Q("160 mm")))
sketch7.addConstraint(Sketcher.Constraint("DistanceX", 5, 3, 6, 3, Q("85 mm")))
sketch7.addConstraint(Sketcher.Constraint("DistanceY", 7, 3, 5, 3, Q("70 mm")))
sketch7.addConstraint(Sketcher.Constraint("DistanceX", 4, 3, 7, 3, Q("110 mm")))
sketch7.addConstraint(Sketcher.Constraint("DistanceX", 7, 3, 8, 3, Q("85 mm")))
sketch7.addConstraint(Sketcher.Constraint("DistanceY", 5, 3, 9, 3, Q("65 mm")))
sketch7.addConstraint(Sketcher.Constraint("DistanceY", 10, 3, 11, 3, Q("70 mm")))
sketch7.addConstraint(Sketcher.Constraint("DistanceX", 12, 3, 0, 3, Q("85 mm")))
sketch7.addConstraint(Sketcher.Constraint("DistanceX", 0, 3, -1, 1, Q("14.913549 mm")))
sketch7.addConstraint(Sketcher.Constraint("DistanceY", 0, 3, -1, 1, Q("250.576478 mm")))
sketch7.addConstraint(Sketcher.Constraint("DistanceX", 5, 3, -1, 1, Q("400.634587 mm")))
pocket1 = body.newObject("PartDesign::Pocket", "Pocket")
pocket1.Profile = sketch7
pocket1.Type = "ThroughAll"
pocket1.Reversed = True

doc.recompute()
